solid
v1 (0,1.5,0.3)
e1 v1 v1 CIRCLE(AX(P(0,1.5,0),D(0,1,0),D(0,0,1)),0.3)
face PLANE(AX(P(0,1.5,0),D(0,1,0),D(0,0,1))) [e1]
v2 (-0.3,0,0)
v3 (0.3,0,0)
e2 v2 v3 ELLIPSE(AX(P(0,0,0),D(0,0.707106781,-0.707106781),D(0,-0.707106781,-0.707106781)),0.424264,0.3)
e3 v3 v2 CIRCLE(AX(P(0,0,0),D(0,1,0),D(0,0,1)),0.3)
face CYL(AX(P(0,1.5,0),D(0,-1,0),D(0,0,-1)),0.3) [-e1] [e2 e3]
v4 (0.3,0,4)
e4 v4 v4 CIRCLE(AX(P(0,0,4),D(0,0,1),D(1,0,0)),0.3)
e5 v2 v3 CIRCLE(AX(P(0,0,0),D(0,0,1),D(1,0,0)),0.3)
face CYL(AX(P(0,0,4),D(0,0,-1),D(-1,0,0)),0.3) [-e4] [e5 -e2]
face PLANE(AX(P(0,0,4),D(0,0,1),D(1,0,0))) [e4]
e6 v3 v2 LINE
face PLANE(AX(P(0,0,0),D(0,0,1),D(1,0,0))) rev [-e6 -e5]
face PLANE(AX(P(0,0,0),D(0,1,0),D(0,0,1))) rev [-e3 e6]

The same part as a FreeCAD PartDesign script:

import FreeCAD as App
import Part
import Sketcher
from FreeCAD import Vector

doc = App.newDocument("Part")
body = doc.addObject("PartDesign::Body", "Body")

sketch1 = body.newObject("Sketcher::SketchObject", "Sketch")
sketch1.AttachmentSupport = (doc.getObject("XY_Plane"), [""])
sketch1.MapMode = "FlatFace"
sketch1.addGeometry(Part.Circle(Vector(0, 0, 0), Vector(0, 0, 1), 0.3), False)
sketch1.addConstraint(Sketcher.Constraint("Coincident", 0, 3, -1, 1))
sketch1.addConstraint(Sketcher.Constraint("Diameter", 0, 0.6))
pad1 = body.newObject("PartDesign::Pad", "Pad")
pad1.Profile = sketch1
pad1.Length = 4

sketch2 = body.newObject("Sketcher::SketchObject", "Sketch001")
sketch2.AttachmentSupport = (doc.getObject("XZ_Plane"), [""])
sketch2.MapMode = "FlatFace"
sketch2.addGeometry(Part.Circle(Vector(0, 0, 0), Vector(0, 0, 1), 0.3), False)
sketch2.addConstraint(Sketcher.Constraint("Coincident", 0, 3, -1, 1))
sketch2.addConstraint(Sketcher.Constraint("Diameter", 0, 0.6))
pad2 = body.newObject("PartDesign::Pad", "Pad001")
pad2.Profile = sketch2
pad2.Length = 1.5
pad2.Reversed = True

doc.recompute()
